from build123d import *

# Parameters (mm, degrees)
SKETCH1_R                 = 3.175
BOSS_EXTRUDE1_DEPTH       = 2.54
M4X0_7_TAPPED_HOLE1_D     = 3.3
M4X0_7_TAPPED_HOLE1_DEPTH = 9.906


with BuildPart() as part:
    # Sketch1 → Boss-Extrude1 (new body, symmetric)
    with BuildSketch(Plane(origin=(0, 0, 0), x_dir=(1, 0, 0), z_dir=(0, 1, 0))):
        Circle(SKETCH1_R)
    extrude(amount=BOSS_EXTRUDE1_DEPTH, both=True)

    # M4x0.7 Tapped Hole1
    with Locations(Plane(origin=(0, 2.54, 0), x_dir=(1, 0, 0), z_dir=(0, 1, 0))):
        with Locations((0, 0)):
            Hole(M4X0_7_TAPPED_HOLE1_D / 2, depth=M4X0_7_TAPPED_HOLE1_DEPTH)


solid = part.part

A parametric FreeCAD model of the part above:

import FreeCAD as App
import Part
import Sketcher

V = App.Vector
Q = App.Units.Quantity

doc = App.newDocument("Part")
body = doc.addObject("PartDesign::Body", "Body")

# Sketch on XZ plane
sketch1 = body.newObject("Sketcher::SketchObject", "Sketch")
sketch1.AttachmentSupport = (doc.getObject("XZ_Plane"), [""])
sketch1.MapMode = "FlatFace"
sketch1.addGeometry(Part.Circle(V(0, 0, 0), V(0, 0, 1), 3.2), False)
sketch1.addConstraint(Sketcher.Constraint("Coincident", 0, 3, -1, 1))
sketch1.addConstraint(Sketcher.Constraint("Diameter", 0, Q("0.25 in")))
pad1 = body.newObject("PartDesign::Pad", "Pad")
pad1.Profile = sketch1
pad1.Length = Q("0.2 in")
pad1.Midplane = True

# Sketch on XZ plane
sketch2 = body.newObject("Sketcher::SketchObject", "Sketch001")
sketch2.AttachmentSupport = (doc.getObject("XZ_Plane"), [""])
sketch2.MapMode = "FlatFace"
sketch2.AttachmentOffset = App.Placement(V(0, 0, -0.1 * 25.4), App.Rotation())
sketch2.addGeometry(Part.Circle(V(0, 0, 0), V(0, 0, 1), 1.6), False)
sketch2.addConstraint(Sketcher.Constraint("Coincident", 0, 3, -1, 1))
sketch2.addConstraint(Sketcher.Constraint("Diameter", 0, Q("3.3 mm")))
doc.recompute()
hole = body.newObject("PartDesign::Hole", "Hole")
hole.Profile = sketch2
hole.ThreadType = "None"
hole.Diameter = 3.3
hole.DepthType = "Dimension"
hole.Depth = Q("0.39 in")
hole.DrillPoint = "Flat"
hole.Reversed = True

doc.recompute()
